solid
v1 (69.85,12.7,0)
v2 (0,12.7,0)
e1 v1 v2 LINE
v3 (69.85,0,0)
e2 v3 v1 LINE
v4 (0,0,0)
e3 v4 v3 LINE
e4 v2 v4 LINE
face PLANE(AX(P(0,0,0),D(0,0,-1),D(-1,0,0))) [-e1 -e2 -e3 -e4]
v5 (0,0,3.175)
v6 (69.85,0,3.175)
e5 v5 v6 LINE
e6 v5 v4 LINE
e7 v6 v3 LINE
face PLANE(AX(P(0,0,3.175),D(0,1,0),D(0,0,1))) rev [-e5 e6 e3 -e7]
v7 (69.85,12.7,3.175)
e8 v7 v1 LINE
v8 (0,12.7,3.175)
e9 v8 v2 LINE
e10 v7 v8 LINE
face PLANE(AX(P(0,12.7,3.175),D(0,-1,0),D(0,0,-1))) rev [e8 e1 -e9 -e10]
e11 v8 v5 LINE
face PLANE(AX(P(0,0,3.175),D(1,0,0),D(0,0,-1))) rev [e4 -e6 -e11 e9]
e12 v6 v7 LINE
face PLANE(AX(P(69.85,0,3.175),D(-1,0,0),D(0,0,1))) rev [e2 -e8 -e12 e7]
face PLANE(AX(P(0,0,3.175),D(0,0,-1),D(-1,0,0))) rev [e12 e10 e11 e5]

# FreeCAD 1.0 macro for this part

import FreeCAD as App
import Part
import Sketcher
from FreeCAD import Vector
Q = App.Units.Quantity

doc = App.newDocument("Part")
body = doc.addObject("PartDesign::Body", "Body")

sketch1 = body.newObject("Sketcher::SketchObject", "Sketch")
sketch1.AttachmentSupport = (doc.getObject("XY_Plane"), [""])
sketch1.MapMode = "FlatFace"
sketch1.addGeometry([
    Part.LineSegment(Vector(0, 13, 0), Vector(0, 0, 0)),
    Part.LineSegment(Vector(0, 0, 0), Vector(70, 0, 0)),
    Part.LineSegment(Vector(70, 0, 0), Vector(70, 13, 0)),
    Part.LineSegment(Vector(70, 13, 0), Vector(0, 13, 0)),
], False)
sketch1.addConstraint([
    Sketcher.Constraint("Coincident", 0, 2, 1, 1),
    Sketcher.Constraint("Coincident", 1, 2, 2, 1),
    Sketcher.Constraint("Coincident", 2, 2, 3, 1),
    Sketcher.Constraint("Coincident", 3, 2, 0, 1),
    Sketcher.Constraint("Vertical", 0),
    Sketcher.Constraint("Horizontal", 1),
    Sketcher.Constraint("Vertical", 2),
    Sketcher.Constraint("Horizontal", 3),
    Sketcher.Constraint("Coincident", 0, 2, -1, 1),
    Sketcher.Constraint("DistanceY", 0, 2, 0, 1, Q("0.5 in")),
    Sketcher.Constraint("DistanceX", 1, 1, 1, 2, Q("2.75 in")),
])
pad1 = body.newObject("PartDesign::Pad", "Pad")
pad1.Profile = sketch1
pad1.Length = Q("0.125 in")

doc.recompute()
